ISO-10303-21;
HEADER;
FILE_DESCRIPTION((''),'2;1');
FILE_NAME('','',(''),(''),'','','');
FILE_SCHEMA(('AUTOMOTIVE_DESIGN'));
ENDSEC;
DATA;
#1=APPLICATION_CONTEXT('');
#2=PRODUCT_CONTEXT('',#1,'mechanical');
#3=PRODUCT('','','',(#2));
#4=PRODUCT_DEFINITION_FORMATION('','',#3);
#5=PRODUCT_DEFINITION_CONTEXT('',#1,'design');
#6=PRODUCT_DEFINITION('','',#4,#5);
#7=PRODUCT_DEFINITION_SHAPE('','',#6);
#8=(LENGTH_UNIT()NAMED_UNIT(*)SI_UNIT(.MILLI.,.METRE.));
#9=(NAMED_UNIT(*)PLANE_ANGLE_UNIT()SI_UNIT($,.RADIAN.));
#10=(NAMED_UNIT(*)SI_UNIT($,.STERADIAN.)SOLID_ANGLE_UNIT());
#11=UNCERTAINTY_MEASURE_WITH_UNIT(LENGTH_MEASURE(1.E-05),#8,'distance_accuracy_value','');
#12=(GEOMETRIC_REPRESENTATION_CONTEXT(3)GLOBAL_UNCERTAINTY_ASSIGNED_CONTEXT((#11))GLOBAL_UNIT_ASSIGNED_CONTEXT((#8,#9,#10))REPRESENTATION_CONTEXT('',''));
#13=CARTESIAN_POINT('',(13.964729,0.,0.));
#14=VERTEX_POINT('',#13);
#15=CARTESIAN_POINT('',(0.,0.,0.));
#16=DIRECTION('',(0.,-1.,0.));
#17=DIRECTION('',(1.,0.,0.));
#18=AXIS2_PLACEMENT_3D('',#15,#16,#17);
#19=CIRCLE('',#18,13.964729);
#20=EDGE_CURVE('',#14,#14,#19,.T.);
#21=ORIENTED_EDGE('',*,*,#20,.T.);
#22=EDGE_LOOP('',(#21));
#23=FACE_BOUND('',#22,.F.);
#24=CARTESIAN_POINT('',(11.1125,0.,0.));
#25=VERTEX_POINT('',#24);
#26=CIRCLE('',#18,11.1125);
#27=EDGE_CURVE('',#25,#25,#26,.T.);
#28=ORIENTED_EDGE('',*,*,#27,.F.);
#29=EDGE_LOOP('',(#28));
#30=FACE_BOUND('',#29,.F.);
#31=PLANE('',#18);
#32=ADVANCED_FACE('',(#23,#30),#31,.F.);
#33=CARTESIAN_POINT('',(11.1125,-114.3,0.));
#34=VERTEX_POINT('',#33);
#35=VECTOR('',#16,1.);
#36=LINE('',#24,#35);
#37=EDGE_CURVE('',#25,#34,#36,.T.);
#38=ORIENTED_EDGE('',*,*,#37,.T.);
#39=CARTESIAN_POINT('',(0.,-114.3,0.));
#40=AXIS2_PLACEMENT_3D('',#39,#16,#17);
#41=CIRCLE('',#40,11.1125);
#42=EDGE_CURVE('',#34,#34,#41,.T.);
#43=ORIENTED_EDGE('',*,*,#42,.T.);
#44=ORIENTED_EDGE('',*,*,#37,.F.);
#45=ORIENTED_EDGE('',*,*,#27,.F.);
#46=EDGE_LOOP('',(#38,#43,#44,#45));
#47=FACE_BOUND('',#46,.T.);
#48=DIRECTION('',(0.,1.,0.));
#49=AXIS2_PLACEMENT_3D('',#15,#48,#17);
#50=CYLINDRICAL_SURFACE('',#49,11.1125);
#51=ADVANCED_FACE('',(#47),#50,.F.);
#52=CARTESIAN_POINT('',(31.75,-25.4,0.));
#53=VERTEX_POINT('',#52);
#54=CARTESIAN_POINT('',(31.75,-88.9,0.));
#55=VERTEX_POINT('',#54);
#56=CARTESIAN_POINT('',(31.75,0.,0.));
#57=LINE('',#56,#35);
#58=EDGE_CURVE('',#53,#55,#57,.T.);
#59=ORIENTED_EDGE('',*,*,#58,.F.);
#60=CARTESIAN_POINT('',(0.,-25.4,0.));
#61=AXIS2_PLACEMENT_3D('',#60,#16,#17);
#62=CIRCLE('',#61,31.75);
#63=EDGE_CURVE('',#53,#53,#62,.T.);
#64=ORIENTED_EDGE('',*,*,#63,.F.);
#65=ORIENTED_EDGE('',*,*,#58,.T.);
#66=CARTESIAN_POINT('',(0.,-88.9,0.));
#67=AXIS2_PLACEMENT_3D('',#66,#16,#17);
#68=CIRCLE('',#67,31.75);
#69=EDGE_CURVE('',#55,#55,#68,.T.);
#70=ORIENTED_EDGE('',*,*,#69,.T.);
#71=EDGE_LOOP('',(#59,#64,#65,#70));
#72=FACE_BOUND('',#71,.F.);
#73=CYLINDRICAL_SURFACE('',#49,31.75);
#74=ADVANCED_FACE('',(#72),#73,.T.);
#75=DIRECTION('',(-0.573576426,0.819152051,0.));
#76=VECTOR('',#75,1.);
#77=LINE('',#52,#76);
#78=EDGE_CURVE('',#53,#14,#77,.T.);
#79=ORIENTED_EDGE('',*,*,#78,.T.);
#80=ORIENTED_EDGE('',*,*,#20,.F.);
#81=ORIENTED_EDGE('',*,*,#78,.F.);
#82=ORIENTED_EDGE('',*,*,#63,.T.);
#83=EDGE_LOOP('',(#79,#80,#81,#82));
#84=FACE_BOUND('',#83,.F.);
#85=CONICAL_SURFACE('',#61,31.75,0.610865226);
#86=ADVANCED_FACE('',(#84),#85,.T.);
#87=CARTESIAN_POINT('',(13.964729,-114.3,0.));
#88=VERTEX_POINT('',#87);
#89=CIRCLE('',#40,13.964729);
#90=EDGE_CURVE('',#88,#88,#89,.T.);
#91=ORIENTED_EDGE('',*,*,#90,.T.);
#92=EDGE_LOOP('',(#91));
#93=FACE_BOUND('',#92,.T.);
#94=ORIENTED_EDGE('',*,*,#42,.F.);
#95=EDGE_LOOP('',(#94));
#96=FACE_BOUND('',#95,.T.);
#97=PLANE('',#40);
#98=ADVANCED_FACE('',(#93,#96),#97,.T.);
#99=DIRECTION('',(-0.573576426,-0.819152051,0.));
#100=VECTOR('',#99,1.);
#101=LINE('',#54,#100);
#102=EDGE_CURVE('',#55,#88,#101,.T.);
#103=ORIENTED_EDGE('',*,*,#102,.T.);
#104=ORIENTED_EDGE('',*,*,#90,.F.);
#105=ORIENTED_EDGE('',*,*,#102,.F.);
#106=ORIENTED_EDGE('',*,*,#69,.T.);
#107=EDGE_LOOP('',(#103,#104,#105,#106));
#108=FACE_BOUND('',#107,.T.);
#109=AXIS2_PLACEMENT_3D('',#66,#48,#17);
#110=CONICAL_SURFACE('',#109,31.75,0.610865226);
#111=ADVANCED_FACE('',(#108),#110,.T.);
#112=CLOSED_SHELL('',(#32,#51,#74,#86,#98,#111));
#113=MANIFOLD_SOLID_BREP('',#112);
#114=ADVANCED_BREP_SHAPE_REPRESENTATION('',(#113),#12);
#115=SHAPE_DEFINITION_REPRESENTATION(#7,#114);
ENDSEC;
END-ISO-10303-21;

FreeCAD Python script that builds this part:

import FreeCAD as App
import Part
import Sketcher
Q = App.Units.Quantity


def edges_at(feature, points):
    """Names of the edges that pass closest to the given points."""
    edges = feature.Shape.Edges
    near = lambda p: min(range(len(edges)), key=lambda i: edges[i].distToShape(Part.Vertex(*p))[0])
    return sorted({f"Edge{near(p) + 1}" for p in points})

doc = App.newDocument("Part")
body = doc.addObject("PartDesign::Body", "Body")

# Sketch on XZ plane
sketch1 = body.newObject("Sketcher::SketchObject", "Sketch")
sketch1.AttachmentSupport = (doc.getObject("XZ_Plane"), [""])
sketch1.MapMode = "FlatFace"
sketch1.addGeometry(Part.Circle(App.Vector(0, 0, 0), App.Vector(0, 0, 1), 32), False)
sketch1.addGeometry(Part.Circle(App.Vector(0, 0, 0), App.Vector(0, 0, 1), 11), False)
sketch1.addConstraint(Sketcher.Constraint("Coincident", 0, 3, -1, 1))
sketch1.addConstraint(Sketcher.Constraint("Coincident", 1, 3, -1, 1))
sketch1.addConstraint(Sketcher.Constraint("Diameter", 0, Q("2.5 in")))
sketch1.addConstraint(Sketcher.Constraint("Diameter", 1, Q("0.875 in")))
pad1 = body.newObject("PartDesign::Pad", "Pad")
pad1.Profile = sketch1
pad1.Length = Q("4.5 in")
doc.recompute()

chamfer = body.newObject("PartDesign::Chamfer", "Chamfer")
chamfer.Base = (pad1, edges_at(pad1, [(31.75, -57.15, 0), (-31.75, 0, 0), (-31.75, -114.3, 0)]))
chamfer.ChamferType = "Two distances"
chamfer.Size = Q("1 in")
chamfer.Size2 = 17.785271

doc.recompute()
